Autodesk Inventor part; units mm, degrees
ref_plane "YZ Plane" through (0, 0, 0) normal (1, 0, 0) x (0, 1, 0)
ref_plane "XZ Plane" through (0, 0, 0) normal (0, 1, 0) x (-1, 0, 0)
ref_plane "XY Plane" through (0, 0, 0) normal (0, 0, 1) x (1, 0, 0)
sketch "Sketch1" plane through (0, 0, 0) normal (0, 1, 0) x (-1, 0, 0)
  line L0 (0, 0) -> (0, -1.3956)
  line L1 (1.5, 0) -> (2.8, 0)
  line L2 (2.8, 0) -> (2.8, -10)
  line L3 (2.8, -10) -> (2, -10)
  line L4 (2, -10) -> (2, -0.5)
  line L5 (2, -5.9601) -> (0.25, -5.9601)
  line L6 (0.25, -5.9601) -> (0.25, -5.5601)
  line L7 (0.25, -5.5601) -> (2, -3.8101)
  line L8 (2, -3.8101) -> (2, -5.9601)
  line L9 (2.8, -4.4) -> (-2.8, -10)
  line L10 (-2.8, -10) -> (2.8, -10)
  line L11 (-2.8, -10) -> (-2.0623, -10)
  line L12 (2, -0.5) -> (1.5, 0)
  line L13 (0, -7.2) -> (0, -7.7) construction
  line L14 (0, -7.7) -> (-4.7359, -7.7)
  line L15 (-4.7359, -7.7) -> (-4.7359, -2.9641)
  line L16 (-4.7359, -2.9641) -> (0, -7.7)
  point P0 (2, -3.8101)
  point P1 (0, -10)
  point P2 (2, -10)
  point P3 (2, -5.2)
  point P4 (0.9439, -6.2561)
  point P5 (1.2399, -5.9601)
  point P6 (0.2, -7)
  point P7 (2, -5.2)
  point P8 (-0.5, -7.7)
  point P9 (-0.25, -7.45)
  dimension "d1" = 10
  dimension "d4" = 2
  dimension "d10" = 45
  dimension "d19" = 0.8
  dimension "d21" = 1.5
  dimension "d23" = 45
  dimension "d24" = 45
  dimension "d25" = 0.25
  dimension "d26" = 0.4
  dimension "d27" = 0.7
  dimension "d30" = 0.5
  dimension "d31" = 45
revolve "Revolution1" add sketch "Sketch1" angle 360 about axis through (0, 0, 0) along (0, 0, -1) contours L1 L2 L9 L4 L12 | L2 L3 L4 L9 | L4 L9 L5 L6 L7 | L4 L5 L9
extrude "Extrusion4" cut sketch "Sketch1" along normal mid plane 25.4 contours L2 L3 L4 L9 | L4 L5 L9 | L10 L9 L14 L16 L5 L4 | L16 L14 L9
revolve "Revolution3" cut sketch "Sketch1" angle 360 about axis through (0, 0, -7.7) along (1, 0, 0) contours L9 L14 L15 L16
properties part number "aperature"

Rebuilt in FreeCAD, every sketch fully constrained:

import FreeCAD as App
import Part
import Sketcher

V = App.Vector
Q = App.Units.Quantity


def add_polygon(sketch, points):
    """Adds a closed chain of lines whose ends are joined by coincident constraints."""
    first, n = sketch.GeometryCount, len(points)
    for a, b in zip(points, points[1:] + points[:1]):
        sketch.addGeometry(Part.LineSegment(App.Vector(*a, 0), App.Vector(*b, 0)), False)
    for i in range(n):
        sketch.addConstraint(Sketcher.Constraint("Coincident", first + i, 2, first + (i + 1) % n, 1))

doc = App.newDocument("Part")
body = doc.addObject("PartDesign::Body", "Body")

# Sketch on XZ plane
sketch1 = body.newObject("Sketcher::SketchObject", "Sketch")
sketch1.AttachmentSupport = (doc.getObject("XZ_Plane"), [""])
sketch1.MapMode = "FlatFace"
add_polygon(sketch1, [(-2.8, 0), (-1.5, 0), (-2, -0.5), (-2, -3.8101), (-0.25, -5.5601), (-0.25, -5.9601), (-2, -5.9601), (-2, -10), (-2.8, -10)])  # lines 0-8
sketch1.addConstraint([
    Sketcher.Constraint("Horizontal", 0),
    Sketcher.Constraint("Vertical", 2),
    Sketcher.Constraint("Vertical", 4),
    Sketcher.Constraint("Horizontal", 5),
    Sketcher.Constraint("Vertical", 6),
    Sketcher.Constraint("Horizontal", 7),
    Sketcher.Constraint("Vertical", 8),
    Sketcher.Constraint("PointOnObject", 0, 2, -1),
    Sketcher.Constraint("Perpendicular", 1, 3),
    Sketcher.Constraint("Vertical", 2, 2, 5, 2),
    Sketcher.Constraint("DistanceY", 8, 1, 8, 2, Q("10 mm")),
    Sketcher.Constraint("Angle", 3, Q("-45 deg")),
    Sketcher.Constraint("DistanceX", 7, 2, 7, 1, Q("0.8 mm")),
    Sketcher.Constraint("DistanceY", 4, 2, 4, 1, Q("0.4 mm")),
    Sketcher.Constraint("DistanceX", 1, 2, -1, 1, Q("2 mm")),
    Sketcher.Constraint("DistanceX", 0, 2, -1, 1, Q("1.5 mm")),
    Sketcher.Constraint("DistanceX", 3, 2, -1, 1, Q("0.25 mm")),
    Sketcher.Constraint("DistanceY", 2, 2, 2, 1, Q("3.31 mm")),
])
revolution = body.newObject("PartDesign::Revolution", "Revolution")
revolution.Profile = sketch1
revolution.ReferenceAxis = (sketch1, ["V_Axis"])
revolution.Angle = 360

# Sketch on XZ plane
sketch2 = body.newObject("Sketcher::SketchObject", "Sketch001")
sketch2.AttachmentSupport = (doc.getObject("XZ_Plane"), [""])
sketch2.MapMode = "FlatFace"
add_polygon(sketch2, [(-2.8, -10), (-2.8, -4.4), (2.8, -10)])  # lines 0-2
sketch2.addConstraint([
    Sketcher.Constraint("Vertical", 0),
    Sketcher.Constraint("Horizontal", 2),
    Sketcher.Constraint("Equal", 2, 0),
    Sketcher.Constraint("DistanceY", 1, 2, -1, 1, Q("10 mm")),
    Sketcher.Constraint("DistanceX", 2, 2, 2, 1, Q("5.6 mm")),
    Sketcher.Constraint("DistanceX", 0, 2, -1, 1, Q("2.8 mm")),
])
pocket1 = body.newObject("PartDesign::Pocket", "Pocket")
pocket1.Profile = sketch2
pocket1.Length = 25.4
pocket1.Midplane = True

# Sketch on XZ plane
sketch3 = body.newObject("Sketcher::SketchObject", "Sketch002")
sketch3.AttachmentSupport = (doc.getObject("XZ_Plane"), [""])
sketch3.MapMode = "FlatFace"
add_polygon(sketch3, [(0.5, -7.7), (0.25, -7.45), (4.7359, -2.9641), (4.7359, -7.7)])  # lines 0-3
sketch3.addGeometry(Part.LineSegment(V(0.25, -7.7, 0), V(4.7359, -7.7, 0)), True)  # axis
sketch3.addConstraint([
    Sketcher.Constraint("Vertical", 2),
    Sketcher.Constraint("Horizontal", 3),
    Sketcher.Constraint("Horizontal", 4),
    Sketcher.Constraint("Coincident", 4, 2, 2, 2),
    Sketcher.Constraint("Perpendicular", 0, 1),
    Sketcher.Constraint("Vertical", 0, 2, 4, 1),
    Sketcher.Constraint("Angle", 1, Q("45 deg")),
    Sketcher.Constraint("DistanceX", -1, 1, 3, 2, Q("0.5 mm")),
    Sketcher.Constraint("DistanceX", -1, 1, 0, 2, Q("0.25 mm")),
    Sketcher.Constraint("DistanceY", 2, 2, -1, 1, Q("7.7 mm")),
    Sketcher.Constraint("DistanceX", 3, 2, 3, 1, Q("4.236 mm")),
])
groove = body.newObject("PartDesign::Groove", "Groove")
groove.Profile = sketch3
groove.ReferenceAxis = (sketch3, ["Axis0"])
groove.Angle = 360

doc.recompute()
